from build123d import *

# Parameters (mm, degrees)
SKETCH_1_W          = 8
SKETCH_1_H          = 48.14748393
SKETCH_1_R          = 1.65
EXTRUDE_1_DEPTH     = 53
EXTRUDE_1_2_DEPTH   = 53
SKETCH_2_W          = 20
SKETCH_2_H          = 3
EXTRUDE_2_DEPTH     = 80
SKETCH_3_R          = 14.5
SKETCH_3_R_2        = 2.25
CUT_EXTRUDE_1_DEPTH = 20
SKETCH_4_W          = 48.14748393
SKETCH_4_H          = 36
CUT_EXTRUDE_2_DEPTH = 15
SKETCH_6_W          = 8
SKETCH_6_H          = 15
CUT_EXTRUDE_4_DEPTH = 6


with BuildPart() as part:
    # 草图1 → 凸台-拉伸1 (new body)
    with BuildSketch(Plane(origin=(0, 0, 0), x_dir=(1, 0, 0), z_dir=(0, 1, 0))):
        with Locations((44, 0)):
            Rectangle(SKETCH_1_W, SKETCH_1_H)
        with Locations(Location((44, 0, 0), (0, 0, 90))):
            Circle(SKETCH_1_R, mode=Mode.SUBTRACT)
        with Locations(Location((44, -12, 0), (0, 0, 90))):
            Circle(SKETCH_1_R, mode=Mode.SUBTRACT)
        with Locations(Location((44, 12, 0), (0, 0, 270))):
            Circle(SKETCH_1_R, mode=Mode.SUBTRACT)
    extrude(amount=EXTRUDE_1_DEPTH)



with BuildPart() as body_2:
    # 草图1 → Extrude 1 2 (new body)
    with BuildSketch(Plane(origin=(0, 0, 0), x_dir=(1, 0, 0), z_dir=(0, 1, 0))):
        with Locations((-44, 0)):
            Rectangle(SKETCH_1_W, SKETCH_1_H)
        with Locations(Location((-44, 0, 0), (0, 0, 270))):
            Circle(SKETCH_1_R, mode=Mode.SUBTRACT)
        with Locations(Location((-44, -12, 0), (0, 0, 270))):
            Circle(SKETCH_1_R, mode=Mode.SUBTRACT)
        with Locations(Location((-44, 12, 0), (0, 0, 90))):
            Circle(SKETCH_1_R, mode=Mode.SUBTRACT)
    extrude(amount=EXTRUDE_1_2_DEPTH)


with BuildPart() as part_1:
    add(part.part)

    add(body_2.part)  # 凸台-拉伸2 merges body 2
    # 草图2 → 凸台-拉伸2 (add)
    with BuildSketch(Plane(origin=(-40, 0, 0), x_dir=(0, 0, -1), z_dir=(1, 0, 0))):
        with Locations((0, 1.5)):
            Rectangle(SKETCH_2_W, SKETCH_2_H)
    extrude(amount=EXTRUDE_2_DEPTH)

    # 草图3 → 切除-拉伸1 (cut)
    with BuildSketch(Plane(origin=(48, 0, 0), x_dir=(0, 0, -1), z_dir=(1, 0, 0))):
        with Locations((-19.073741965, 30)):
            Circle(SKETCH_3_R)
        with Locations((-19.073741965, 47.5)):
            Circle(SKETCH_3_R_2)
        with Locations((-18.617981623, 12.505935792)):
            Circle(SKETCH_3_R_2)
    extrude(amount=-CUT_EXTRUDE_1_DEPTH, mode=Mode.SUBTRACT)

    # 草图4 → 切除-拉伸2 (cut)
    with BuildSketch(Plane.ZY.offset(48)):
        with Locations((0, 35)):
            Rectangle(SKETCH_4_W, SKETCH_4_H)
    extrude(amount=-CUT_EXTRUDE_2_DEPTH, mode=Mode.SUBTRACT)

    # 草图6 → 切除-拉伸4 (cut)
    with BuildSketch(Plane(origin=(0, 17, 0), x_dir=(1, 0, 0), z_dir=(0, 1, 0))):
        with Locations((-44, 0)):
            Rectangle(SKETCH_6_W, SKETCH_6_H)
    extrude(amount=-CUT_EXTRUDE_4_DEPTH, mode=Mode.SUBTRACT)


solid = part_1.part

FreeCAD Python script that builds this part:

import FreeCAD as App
import Part
import Sketcher
from FreeCAD import Vector
Q = App.Units.Quantity

doc = App.newDocument("Part")
params = doc.addObject("Spreadsheet::Sheet", "Params")
for row, (alias, value) in enumerate([
    ("sketch1_diameter", "3.3 mm"),
    ("sketch1_width", "8 mm"),
    ("pad1_length", "53 mm"),
    ("sketch2_diameter", "3.3 mm"),
    ("sketch2_width", "8 mm"),
    ("pad2_length", "53 mm"),
    ("sketch3_width", "3 mm"),
    ("sketch3_height", "20 mm"),
    ("pad3_length", "80 mm"),
    ("sketch4_diameter", "29 mm"),
    ("sketch4_diameter2", "4.5 mm"),
    ("pocket1_length", "20 mm"),
    ("sketch5_width", "36 mm"),
    ("pocket2_length", "15 mm"),
    ("sketch6_width", "8 mm"),
    ("sketch6_height", "15 mm"),
    ("pocket3_length", "6 mm"),
], start=1):
    params.set(f"A{row}", alias)
    params.set(f"B{row}", "=" + value)
    params.setAlias(f"B{row}", alias)

body = doc.addObject("PartDesign::Body", "Body")

sketch1 = body.newObject("Sketcher::SketchObject", "Sketch")
sketch1.AttachmentSupport = (doc.getObject("XZ_Plane"), [""])
sketch1.MapMode = "FlatFace"
sketch1.addGeometry([
    Part.LineSegment(Vector(40, -24.1, 0), Vector(40, 24.1, 0)),
    Part.LineSegment(Vector(40, 24.1, 0), Vector(48, 24.1, 0)),
    Part.LineSegment(Vector(48, 24.1, 0), Vector(48, -24.1, 0)),
    Part.LineSegment(Vector(48, -24.1, 0), Vector(40, -24.1, 0)),
    Part.Circle(Vector(44, 12, 0), Vector(0, 0, 1), 1.6),
    Part.Circle(Vector(44, 0, 0), Vector(0, 0, 1), 1.6),
    Part.Circle(Vector(44, -12, 0), Vector(0, 0, 1), 1.6),
], False)
sketch1.addConstraint([
    Sketcher.Constraint("Coincident", 0, 2, 1, 1),
    Sketcher.Constraint("Coincident", 1, 2, 2, 1),
    Sketcher.Constraint("Coincident", 2, 2, 3, 1),
    Sketcher.Constraint("Coincident", 3, 2, 0, 1),
    Sketcher.Constraint("Vertical", 0),
    Sketcher.Constraint("Horizontal", 1),
    Sketcher.Constraint("Vertical", 2),
    Sketcher.Constraint("Horizontal", 3),
    Sketcher.Constraint("Equal", 4, 5),
    Sketcher.Constraint("Equal", 5, 6),
    Sketcher.Constraint("Symmetric", 4, 3, 6, 3, -1),
    Sketcher.Constraint("PointOnObject", 5, 3, -1),
    Sketcher.Constraint("Vertical", 4, 3, 5, 3),
    Sketcher.Constraint("Diameter", 4, Q("3.3 mm")),
    Sketcher.Constraint("DistanceX", 1, 1, 1, 2, Q("8 mm")),
    Sketcher.Constraint("DistanceX", -1, 1, 4, 3, Q("44 mm")),
    Sketcher.Constraint("DistanceY", -1, 1, 4, 3, Q("12 mm")),
    Sketcher.Constraint("DistanceX", -1, 1, 0, 2, Q("40 mm")),
    Sketcher.Constraint("DistanceY", 0, 1, 0, 2, Q("48.147484 mm")),
    Sketcher.Constraint("DistanceY", -1, 1, 0, 2, Q("24.073742 mm")),
])
sketch1.setExpression("Constraints[13]", "Params.sketch1_diameter")
sketch1.setExpression("Constraints[14]", "Params.sketch1_width")
pad1 = body.newObject("PartDesign::Pad", "Pad")
pad1.Profile = sketch1
pad1.setExpression("Length", "Params.pad1_length")
pad1.Reversed = True
body2 = doc.addObject("PartDesign::Body", "Body001")

sketch2 = body2.newObject("Sketcher::SketchObject", "Sketch001")
sketch2.AttachmentSupport = (doc.getObject("XZ_Plane001"), [""])
sketch2.MapMode = "FlatFace"
sketch2.addGeometry([
    Part.LineSegment(Vector(-48, -24.1, 0), Vector(-48, 24.1, 0)),
    Part.LineSegment(Vector(-48, 24.1, 0), Vector(-40, 24.1, 0)),
    Part.LineSegment(Vector(-40, 24.1, 0), Vector(-40, -24.1, 0)),
    Part.LineSegment(Vector(-40, -24.1, 0), Vector(-48, -24.1, 0)),
    Part.Circle(Vector(-44, 12, 0), Vector(0, 0, 1), 1.6),
    Part.Circle(Vector(-44, 0, 0), Vector(0, 0, 1), 1.6),
    Part.Circle(Vector(-44, -12, 0), Vector(0, 0, 1), 1.6),
], False)
sketch2.addConstraint([
    Sketcher.Constraint("Coincident", 0, 2, 1, 1),
    Sketcher.Constraint("Coincident", 1, 2, 2, 1),
    Sketcher.Constraint("Coincident", 2, 2, 3, 1),
    Sketcher.Constraint("Coincident", 3, 2, 0, 1),
    Sketcher.Constraint("Vertical", 0),
    Sketcher.Constraint("Horizontal", 1),
    Sketcher.Constraint("Vertical", 2),
    Sketcher.Constraint("Horizontal", 3),
    Sketcher.Constraint("Equal", 4, 5),
    Sketcher.Constraint("Equal", 5, 6),
    Sketcher.Constraint("Symmetric", 4, 3, 6, 3, -1),
    Sketcher.Constraint("PointOnObject", 5, 3, -1),
    Sketcher.Constraint("Vertical", 4, 3, 5, 3),
    Sketcher.Constraint("Diameter", 4, Q("3.3 mm")),
    Sketcher.Constraint("DistanceX", 1, 1, 1, 2, Q("8 mm")),
    Sketcher.Constraint("DistanceX", 4, 3, -1, 1, Q("44 mm")),
    Sketcher.Constraint("DistanceY", -1, 1, 4, 3, Q("12 mm")),
    Sketcher.Constraint("DistanceX", 0, 2, -1, 1, Q("48 mm")),
    Sketcher.Constraint("DistanceY", 0, 1, 0, 2, Q("48.147484 mm")),
    Sketcher.Constraint("DistanceY", -1, 1, 0, 2, Q("24.073742 mm")),
])
sketch2.setExpression("Constraints[13]", "Params.sketch2_diameter")
sketch2.setExpression("Constraints[14]", "Params.sketch2_width")
pad2 = body2.newObject("PartDesign::Pad", "Pad001")
pad2.Profile = sketch2
pad2.setExpression("Length", "Params.pad2_length")
pad2.Reversed = True
body.AllowCompound = True
doc.recompute()

boolean = body.newObject("PartDesign::Boolean", "Boolean")
boolean.Type = "Fuse"
boolean.addObjects([body2])

sketch3 = body.newObject("Sketcher::SketchObject", "Sketch002")
sketch3.AttachmentSupport = (doc.getObject("YZ_Plane"), [""])
sketch3.MapMode = "FlatFace"
sketch3.AttachmentOffset = App.Placement(Vector(0, 0, -40), App.Rotation())
sketch3.addGeometry([
    Part.LineSegment(Vector(3, 10, 0), Vector(0, 10, 0)),
    Part.LineSegment(Vector(0, 10, 0), Vector(0, -10, 0)),
    Part.LineSegment(Vector(0, -10, 0), Vector(3, -10, 0)),
    Part.LineSegment(Vector(3, -10, 0), Vector(3, 10, 0)),
], False)
sketch3.addConstraint([
    Sketcher.Constraint("Coincident", 0, 2, 1, 1),
    Sketcher.Constraint("Coincident", 1, 2, 2, 1),
    Sketcher.Constraint("Coincident", 2, 2, 3, 1),
    Sketcher.Constraint("Coincident", 3, 2, 0, 1),
    Sketcher.Constraint("Horizontal", 0),
    Sketcher.Constraint("Vertical", 1),
    Sketcher.Constraint("Horizontal", 2),
    Sketcher.Constraint("Vertical", 3),
    Sketcher.Constraint("Symmetric", 0, 2, 1, 2, -1, 1),
    Sketcher.Constraint("DistanceX", 0, 2, 0, 1, Q("3 mm")),
    Sketcher.Constraint("DistanceY", 1, 2, 1, 1, Q("20 mm")),
])
sketch3.setExpression("Constraints[9]", "Params.sketch3_width")
sketch3.setExpression("Constraints[10]", "Params.sketch3_height")
pad3 = body.newObject("PartDesign::Pad", "Pad002")
pad3.Profile = sketch3
pad3.setExpression("Length", "Params.pad3_length")

sketch4 = body.newObject("Sketcher::SketchObject", "Sketch003")
sketch4.AttachmentSupport = (doc.getObject("YZ_Plane"), [""])
sketch4.MapMode = "FlatFace"
sketch4.AttachmentOffset = App.Placement(Vector(0, 0, 48), App.Rotation())
sketch4.addGeometry([
    Part.Circle(Vector(30, 19.1, 0), Vector(0, 0, 1), 14.5),
    Part.Circle(Vector(47.5, 19.1, 0), Vector(0, 0, 1), 2.2),
    Part.Circle(Vector(12.5, 18.6, 0), Vector(0, 0, 1), 2.2),
], False)
sketch4.addConstraint([
    Sketcher.Constraint("Equal", 1, 2),
    Sketcher.Constraint("Horizontal", 0, 3, 1, 3),
    Sketcher.Constraint("Diameter", 0, Q("29 mm")),
    Sketcher.Constraint("Diameter", 1, Q("4.5 mm")),
    Sketcher.Constraint("DistanceX", -1, 1, 0, 3, Q("30 mm")),
    Sketcher.Constraint("DistanceX", -1, 1, 1, 3, Q("47.5 mm")),
    Sketcher.Constraint("DistanceY", -1, 1, 0, 3, Q("19.073742 mm")),
    Sketcher.Constraint("DistanceY", -1, 1, 2, 3, Q("18.617982 mm")),
    Sketcher.Constraint("DistanceX", -1, 1, 2, 3, Q("12.505936 mm")),
])
sketch4.setExpression("Constraints[2]", "Params.sketch4_diameter")
sketch4.setExpression("Constraints[3]", "Params.sketch4_diameter2")
pocket1 = body.newObject("PartDesign::Pocket", "Pocket")
pocket1.Profile = sketch4
pocket1.setExpression("Length", "Params.pocket1_length")

sketch5 = body.newObject("Sketcher::SketchObject", "Sketch004")
sketch5.AttachmentSupport = (doc.getObject("YZ_Plane"), [""])
sketch5.MapMode = "FlatFace"
sketch5.AttachmentOffset = App.Placement(Vector(0, 0, -48), App.Rotation())
sketch5.addGeometry([
    Part.LineSegment(Vector(53, -24, 0), Vector(17, -24, 0)),
    Part.LineSegment(Vector(17, -24, 0), Vector(17, 24, 0)),
    Part.LineSegment(Vector(17, 24, 0), Vector(53, 24, 0)),
    Part.LineSegment(Vector(53, 24, 0), Vector(53, -24, 0)),
], False)
sketch5.addConstraint([
    Sketcher.Constraint("Coincident", 0, 2, 1, 1),
    Sketcher.Constraint("Coincident", 1, 2, 2, 1),
    Sketcher.Constraint("Coincident", 2, 2, 3, 1),
    Sketcher.Constraint("Coincident", 3, 2, 0, 1),
    Sketcher.Constraint("Horizontal", 0),
    Sketcher.Constraint("Vertical", 1),
    Sketcher.Constraint("Horizontal", 2),
    Sketcher.Constraint("Vertical", 3),
    Sketcher.Constraint("DistanceX", 0, 2, 0, 1, Q("36 mm")),
    Sketcher.Constraint("DistanceX", -1, 1, 0, 2, Q("17 mm")),
    Sketcher.Constraint("DistanceY", 1, 1, 1, 2, Q("48.147484 mm")),
    Sketcher.Constraint("DistanceY", 0, 2, -1, 1, Q("24.073742 mm")),
])
sketch5.setExpression("Constraints[8]", "Params.sketch5_width")
pocket2 = body.newObject("PartDesign::Pocket", "Pocket001")
pocket2.Profile = sketch5
pocket2.setExpression("Length", "Params.pocket2_length")
pocket2.Reversed = True

sketch6 = body.newObject("Sketcher::SketchObject", "Sketch005")
sketch6.AttachmentSupport = (doc.getObject("XZ_Plane"), [""])
sketch6.MapMode = "FlatFace"
sketch6.AttachmentOffset = App.Placement(Vector(0, 0, -17), App.Rotation())
sketch6.addGeometry([
    Part.LineSegment(Vector(-48, -8, 0), Vector(-48, 8, 0)),
    Part.LineSegment(Vector(-48, 8, 0), Vector(-40, 8, 0)),
    Part.LineSegment(Vector(-40, 8, 0), Vector(-40, -8, 0)),
    Part.LineSegment(Vector(-40, -8, 0), Vector(-48, -8, 0)),
], False)
sketch6.addConstraint([
    Sketcher.Constraint("Coincident", 0, 2, 1, 1),
    Sketcher.Constraint("Coincident", 1, 2, 2, 1),
    Sketcher.Constraint("Coincident", 2, 2, 3, 1),
    Sketcher.Constraint("Coincident", 3, 2, 0, 1),
    Sketcher.Constraint("Vertical", 0),
    Sketcher.Constraint("Horizontal", 1),
    Sketcher.Constraint("Vertical", 2),
    Sketcher.Constraint("Horizontal", 3),
    Sketcher.Constraint("DistanceX", 1, 1, 1, 2, Q("8 mm")),
    Sketcher.Constraint("DistanceY", 0, 1, 0, 2, Q("15 mm")),
    Sketcher.Constraint("DistanceX", 0, 2, -1, 1, Q("48 mm")),
    Sketcher.Constraint("DistanceY", -1, 1, 0, 2, Q("7.5 mm")),
])
sketch6.setExpression("Constraints[8]", "Params.sketch6_width")
sketch6.setExpression("Constraints[9]", "Params.sketch6_height")
pocket3 = body.newObject("PartDesign::Pocket", "Pocket002")
pocket3.Profile = sketch6
pocket3.setExpression("Length", "Params.pocket3_length")
pocket3.Reversed = True

doc.recompute()
